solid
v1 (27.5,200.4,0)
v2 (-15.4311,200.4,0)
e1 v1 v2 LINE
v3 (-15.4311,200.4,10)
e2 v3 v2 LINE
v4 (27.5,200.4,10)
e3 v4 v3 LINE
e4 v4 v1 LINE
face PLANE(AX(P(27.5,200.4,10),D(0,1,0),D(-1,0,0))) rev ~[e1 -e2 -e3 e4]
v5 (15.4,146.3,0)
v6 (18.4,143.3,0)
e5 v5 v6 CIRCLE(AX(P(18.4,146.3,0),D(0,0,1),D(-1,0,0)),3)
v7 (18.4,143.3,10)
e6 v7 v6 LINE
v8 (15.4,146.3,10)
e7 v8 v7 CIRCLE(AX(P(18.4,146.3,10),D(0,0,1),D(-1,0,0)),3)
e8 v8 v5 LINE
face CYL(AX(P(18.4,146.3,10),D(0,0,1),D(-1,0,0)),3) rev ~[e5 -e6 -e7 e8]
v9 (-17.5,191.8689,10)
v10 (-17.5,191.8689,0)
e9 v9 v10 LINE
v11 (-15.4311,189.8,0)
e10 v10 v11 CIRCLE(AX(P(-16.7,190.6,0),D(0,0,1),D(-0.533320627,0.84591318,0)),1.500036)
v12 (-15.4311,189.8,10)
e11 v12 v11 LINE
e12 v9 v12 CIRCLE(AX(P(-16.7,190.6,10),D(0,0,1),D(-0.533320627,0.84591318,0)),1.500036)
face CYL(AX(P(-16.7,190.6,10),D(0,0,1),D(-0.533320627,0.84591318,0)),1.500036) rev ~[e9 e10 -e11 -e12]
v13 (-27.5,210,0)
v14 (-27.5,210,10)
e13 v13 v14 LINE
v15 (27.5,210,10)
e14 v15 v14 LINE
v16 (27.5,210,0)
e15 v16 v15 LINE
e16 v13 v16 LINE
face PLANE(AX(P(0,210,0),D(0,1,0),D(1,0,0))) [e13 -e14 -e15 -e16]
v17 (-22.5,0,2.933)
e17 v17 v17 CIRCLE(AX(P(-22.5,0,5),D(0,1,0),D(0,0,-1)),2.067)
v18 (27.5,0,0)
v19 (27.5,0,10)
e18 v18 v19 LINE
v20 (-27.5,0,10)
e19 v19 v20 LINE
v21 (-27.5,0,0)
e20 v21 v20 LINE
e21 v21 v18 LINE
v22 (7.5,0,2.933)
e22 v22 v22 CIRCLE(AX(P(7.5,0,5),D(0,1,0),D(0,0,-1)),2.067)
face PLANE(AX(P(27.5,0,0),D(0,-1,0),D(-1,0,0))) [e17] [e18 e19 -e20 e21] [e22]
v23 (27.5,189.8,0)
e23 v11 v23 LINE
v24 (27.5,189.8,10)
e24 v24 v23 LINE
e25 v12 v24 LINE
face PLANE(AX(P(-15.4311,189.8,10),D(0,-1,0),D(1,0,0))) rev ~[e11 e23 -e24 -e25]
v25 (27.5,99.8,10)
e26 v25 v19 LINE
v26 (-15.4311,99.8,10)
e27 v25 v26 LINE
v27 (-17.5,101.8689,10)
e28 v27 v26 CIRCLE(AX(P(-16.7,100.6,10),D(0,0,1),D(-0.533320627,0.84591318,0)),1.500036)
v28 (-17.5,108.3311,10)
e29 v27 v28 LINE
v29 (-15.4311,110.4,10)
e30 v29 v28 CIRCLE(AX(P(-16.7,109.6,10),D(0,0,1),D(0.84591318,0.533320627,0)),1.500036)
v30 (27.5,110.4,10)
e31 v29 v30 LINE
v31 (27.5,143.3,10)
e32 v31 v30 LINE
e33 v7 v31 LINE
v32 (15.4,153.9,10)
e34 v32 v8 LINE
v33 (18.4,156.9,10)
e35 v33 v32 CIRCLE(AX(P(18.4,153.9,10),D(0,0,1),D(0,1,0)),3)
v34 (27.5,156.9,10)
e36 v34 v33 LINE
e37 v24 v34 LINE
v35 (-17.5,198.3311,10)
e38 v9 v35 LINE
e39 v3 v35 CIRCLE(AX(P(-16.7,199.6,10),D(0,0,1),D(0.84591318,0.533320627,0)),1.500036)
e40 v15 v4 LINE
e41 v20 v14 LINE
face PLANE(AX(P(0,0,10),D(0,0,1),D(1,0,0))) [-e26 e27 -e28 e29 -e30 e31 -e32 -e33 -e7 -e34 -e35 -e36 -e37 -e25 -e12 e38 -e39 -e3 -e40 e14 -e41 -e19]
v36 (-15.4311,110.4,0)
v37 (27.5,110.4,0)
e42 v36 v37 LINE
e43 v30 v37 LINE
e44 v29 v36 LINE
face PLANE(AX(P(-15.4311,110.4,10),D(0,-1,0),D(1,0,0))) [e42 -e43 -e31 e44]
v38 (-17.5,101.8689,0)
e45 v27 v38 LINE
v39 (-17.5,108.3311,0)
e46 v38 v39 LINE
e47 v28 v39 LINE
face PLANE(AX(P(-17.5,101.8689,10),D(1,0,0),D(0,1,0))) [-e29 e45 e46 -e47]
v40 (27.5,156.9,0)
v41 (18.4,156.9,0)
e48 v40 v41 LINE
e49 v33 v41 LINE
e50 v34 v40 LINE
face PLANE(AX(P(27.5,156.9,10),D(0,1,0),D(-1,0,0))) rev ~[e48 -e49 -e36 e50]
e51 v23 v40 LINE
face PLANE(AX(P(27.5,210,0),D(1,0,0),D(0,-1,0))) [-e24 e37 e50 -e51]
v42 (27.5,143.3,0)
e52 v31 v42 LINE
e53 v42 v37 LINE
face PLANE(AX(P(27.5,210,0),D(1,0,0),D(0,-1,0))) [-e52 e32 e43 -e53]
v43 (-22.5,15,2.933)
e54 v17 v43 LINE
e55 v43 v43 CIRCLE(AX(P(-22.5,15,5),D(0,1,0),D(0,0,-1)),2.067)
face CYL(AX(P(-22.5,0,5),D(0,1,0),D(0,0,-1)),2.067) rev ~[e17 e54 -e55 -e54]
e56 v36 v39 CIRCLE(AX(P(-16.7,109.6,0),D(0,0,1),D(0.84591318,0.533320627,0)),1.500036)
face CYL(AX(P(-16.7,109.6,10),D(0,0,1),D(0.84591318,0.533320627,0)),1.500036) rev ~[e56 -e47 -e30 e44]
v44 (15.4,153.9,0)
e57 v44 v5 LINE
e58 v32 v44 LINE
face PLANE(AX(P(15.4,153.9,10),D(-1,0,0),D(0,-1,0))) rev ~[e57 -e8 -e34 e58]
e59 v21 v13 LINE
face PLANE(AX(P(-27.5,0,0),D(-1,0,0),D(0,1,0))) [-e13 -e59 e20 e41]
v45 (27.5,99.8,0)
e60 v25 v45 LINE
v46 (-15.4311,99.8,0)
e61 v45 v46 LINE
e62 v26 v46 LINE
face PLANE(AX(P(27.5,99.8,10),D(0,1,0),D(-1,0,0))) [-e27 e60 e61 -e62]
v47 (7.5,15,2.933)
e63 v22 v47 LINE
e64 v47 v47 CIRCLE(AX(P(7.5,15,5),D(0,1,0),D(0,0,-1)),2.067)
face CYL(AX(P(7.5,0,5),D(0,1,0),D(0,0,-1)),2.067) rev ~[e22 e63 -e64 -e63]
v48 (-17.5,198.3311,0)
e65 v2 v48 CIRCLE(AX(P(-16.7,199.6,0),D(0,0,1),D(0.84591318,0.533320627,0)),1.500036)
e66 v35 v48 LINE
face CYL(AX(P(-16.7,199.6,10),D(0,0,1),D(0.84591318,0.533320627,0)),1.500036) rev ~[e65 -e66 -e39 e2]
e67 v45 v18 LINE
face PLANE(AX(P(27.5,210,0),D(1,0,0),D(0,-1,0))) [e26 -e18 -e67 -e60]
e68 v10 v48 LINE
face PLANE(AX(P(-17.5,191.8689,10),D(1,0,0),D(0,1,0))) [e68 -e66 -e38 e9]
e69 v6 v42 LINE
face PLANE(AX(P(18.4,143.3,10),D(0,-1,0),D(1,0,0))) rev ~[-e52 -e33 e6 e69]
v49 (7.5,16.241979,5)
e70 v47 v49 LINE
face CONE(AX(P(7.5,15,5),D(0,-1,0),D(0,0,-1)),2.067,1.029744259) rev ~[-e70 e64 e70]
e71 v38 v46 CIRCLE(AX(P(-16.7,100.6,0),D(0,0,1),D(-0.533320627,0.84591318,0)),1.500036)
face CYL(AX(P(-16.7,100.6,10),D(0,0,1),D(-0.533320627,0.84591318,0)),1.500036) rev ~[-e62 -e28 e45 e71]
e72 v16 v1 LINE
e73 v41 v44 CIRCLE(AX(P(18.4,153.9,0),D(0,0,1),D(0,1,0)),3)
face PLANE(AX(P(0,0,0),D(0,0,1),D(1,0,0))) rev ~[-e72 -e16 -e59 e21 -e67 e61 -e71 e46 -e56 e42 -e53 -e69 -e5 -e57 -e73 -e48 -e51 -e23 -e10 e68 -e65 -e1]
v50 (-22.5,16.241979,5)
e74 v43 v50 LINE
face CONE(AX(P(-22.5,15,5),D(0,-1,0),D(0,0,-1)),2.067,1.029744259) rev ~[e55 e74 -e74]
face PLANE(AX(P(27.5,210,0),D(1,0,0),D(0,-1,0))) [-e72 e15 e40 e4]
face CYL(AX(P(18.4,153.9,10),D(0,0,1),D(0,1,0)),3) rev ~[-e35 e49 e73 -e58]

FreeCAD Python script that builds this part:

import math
import FreeCAD as App
import Part
import Sketcher
from FreeCAD import Vector
Q = App.Units.Quantity


def add_polygon(sketch, points):
    """Adds a closed chain of lines whose ends are joined by coincident constraints."""
    first, n = sketch.GeometryCount, len(points)
    for a, b in zip(points, points[1:] + points[:1]):
        sketch.addGeometry(Part.LineSegment(App.Vector(*a, 0), App.Vector(*b, 0)), False)
    for i in range(n):
        sketch.addConstraint(Sketcher.Constraint("Coincident", first + i, 2, first + (i + 1) % n, 1))

doc = App.newDocument("Part")
body = doc.addObject("PartDesign::Body", "Body")

sketch1 = doc.addObject("Sketcher::SketchObject", "Sketch")
body.addObject(sketch1)
sketch1.AttachmentSupport = (doc.XY_Plane, [""])
sketch1.MapMode = "FlatFace"
add_polygon(sketch1, [(27.5, 0), (27.5, 210), (-27.5, 210), (-27.5, 0)])
sketch1.addConstraint(Sketcher.Constraint("Vertical", 0))
sketch1.addConstraint(Sketcher.Constraint("Horizontal", 1))
sketch1.addConstraint(Sketcher.Constraint("Vertical", 2))
sketch1.addConstraint(Sketcher.Constraint("Horizontal", 3))
sketch1.addConstraint(Sketcher.Constraint("Symmetric", 2, 2, 3, 2, -1, 1))
sketch1.addConstraint(Sketcher.Constraint("DistanceX", 1, 2, 1, 1, Q("55 mm")))
sketch1.addConstraint(Sketcher.Constraint("DistanceY", 0, 1, 0, 2, Q("210 mm")))
pad1 = doc.addObject("PartDesign::Pad", "Pad")
body.addObject(pad1)
pad1.Profile = sketch1
pad1.Length = 10

sketch2 = doc.addObject("Sketcher::SketchObject", "Sketch001")
body.addObject(sketch2)
sketch2.AttachmentSupport = (doc.XY_Plane, [""])
sketch2.MapMode = "FlatFace"
sketch2.AttachmentOffset = App.Placement(Vector(0, 0, 10), App.Rotation())
sketch2.addGeometry(Part.LineSegment(Vector(27.5, 99.8, 0), Vector(27.5, 110.4, 0)), False)
sketch2.addGeometry(Part.LineSegment(Vector(27.5, 110.4, 0), Vector(-15.4311, 110.4, 0)), False)
sketch2.addGeometry(Part.ArcOfCircle(Part.Circle(Vector(-16.7, 109.6, 0), Vector(0, 0, 1), 1.500036), math.radians(32.230092), math.radians(237.769908)), False)
sketch2.addGeometry(Part.LineSegment(Vector(-17.5, 108.3311, 0), Vector(-17.5, 101.8689, 0)), False)
sketch2.addGeometry(Part.ArcOfCircle(Part.Circle(Vector(-16.7, 100.6, 0), Vector(0, 0, 1), 1.500036), math.radians(122.230092), math.radians(327.769908)), False)
sketch2.addGeometry(Part.LineSegment(Vector(-15.4311, 99.8, 0), Vector(27.5, 99.8, 0)), False)
sketch2.addGeometry(Part.LineSegment(Vector(27.5, 156.023708, 0), Vector(27.5, 156.9, 0)), False)
sketch2.addGeometry(Part.LineSegment(Vector(27.5, 156.9, 0), Vector(18.4, 156.9, 0)), False)
sketch2.addGeometry(Part.ArcOfCircle(Part.Circle(Vector(18.4, 153.9, 0), Vector(0, 0, 1), 3), math.radians(90), math.radians(180)), False)
sketch2.addGeometry(Part.LineSegment(Vector(15.4, 153.9, 0), Vector(15.4, 146.3, 0)), False)
sketch2.addGeometry(Part.ArcOfCircle(Part.Circle(Vector(18.4, 146.3, 0), Vector(0, 0, 1), 3), math.radians(180), math.radians(270)), False)
sketch2.addGeometry(Part.LineSegment(Vector(18.4, 143.3, 0), Vector(27.5, 143.3, 0)), False)
sketch2.addGeometry(Part.LineSegment(Vector(27.5, 143.3, 0), Vector(27.5, 144.176292, 0)), False)
sketch2.addGeometry(Part.ArcOfCircle(Part.Circle(Vector(22.9, 150.1, 0), Vector(0, 0, 1), 7.500021), math.radians(-52.169209), math.radians(52.169209)), False)
sketch2.addGeometry(Part.LineSegment(Vector(27.5, 189.8, 0), Vector(27.5, 200.4, 0)), False)
sketch2.addGeometry(Part.LineSegment(Vector(27.5, 200.4, 0), Vector(-15.4311, 200.4, 0)), False)
sketch2.addGeometry(Part.ArcOfCircle(Part.Circle(Vector(-16.7, 199.6, 0), Vector(0, 0, 1), 1.500036), math.radians(32.230092), math.radians(237.769908)), False)
sketch2.addGeometry(Part.LineSegment(Vector(-17.5, 198.3311, 0), Vector(-17.5, 191.8689, 0)), False)
sketch2.addGeometry(Part.ArcOfCircle(Part.Circle(Vector(-16.7, 190.6, 0), Vector(0, 0, 1), 1.500036), math.radians(122.230092), math.radians(327.769908)), False)
sketch2.addGeometry(Part.LineSegment(Vector(-15.4311, 189.8, 0), Vector(27.5, 189.8, 0)), False)
sketch2.addConstraint(Sketcher.Constraint("Coincident", 0, 2, 1, 1))
sketch2.addConstraint(Sketcher.Constraint("Coincident", 1, 2, 2, 1))
sketch2.addConstraint(Sketcher.Constraint("Coincident", 2, 2, 3, 1))
sketch2.addConstraint(Sketcher.Constraint("Coincident", 3, 2, 4, 1))
sketch2.addConstraint(Sketcher.Constraint("Coincident", 4, 2, 5, 1))
sketch2.addConstraint(Sketcher.Constraint("Coincident", 5, 2, 0, 1))
sketch2.addConstraint(Sketcher.Constraint("Coincident", 6, 2, 7, 1))
sketch2.addConstraint(Sketcher.Constraint("Tangent", 7, 2, 8, 1))
sketch2.addConstraint(Sketcher.Constraint("Tangent", 8, 2, 9, 1))
sketch2.addConstraint(Sketcher.Constraint("Tangent", 9, 2, 10, 1))
sketch2.addConstraint(Sketcher.Constraint("Tangent", 10, 2, 11, 1))
sketch2.addConstraint(Sketcher.Constraint("Coincident", 11, 2, 12, 1))
sketch2.addConstraint(Sketcher.Constraint("Coincident", 12, 2, 13, 1))
sketch2.addConstraint(Sketcher.Constraint("Coincident", 13, 2, 6, 1))
sketch2.addConstraint(Sketcher.Constraint("Coincident", 14, 2, 15, 1))
sketch2.addConstraint(Sketcher.Constraint("Coincident", 15, 2, 16, 1))
sketch2.addConstraint(Sketcher.Constraint("Coincident", 16, 2, 17, 1))
sketch2.addConstraint(Sketcher.Constraint("Coincident", 17, 2, 18, 1))
sketch2.addConstraint(Sketcher.Constraint("Coincident", 18, 2, 19, 1))
sketch2.addConstraint(Sketcher.Constraint("Coincident", 19, 2, 14, 1))
sketch2.addConstraint(Sketcher.Constraint("Vertical", 0))
sketch2.addConstraint(Sketcher.Constraint("Horizontal", 1))
sketch2.addConstraint(Sketcher.Constraint("Vertical", 3))
sketch2.addConstraint(Sketcher.Constraint("Horizontal", 5))
sketch2.addConstraint(Sketcher.Constraint("Vertical", 6))
sketch2.addConstraint(Sketcher.Constraint("Horizontal", 7))
sketch2.addConstraint(Sketcher.Constraint("Vertical", 9))
sketch2.addConstraint(Sketcher.Constraint("Horizontal", 11))
sketch2.addConstraint(Sketcher.Constraint("Vertical", 12))
sketch2.addConstraint(Sketcher.Constraint("Vertical", 14))
sketch2.addConstraint(Sketcher.Constraint("Horizontal", 15))
sketch2.addConstraint(Sketcher.Constraint("Vertical", 17))
sketch2.addConstraint(Sketcher.Constraint("Horizontal", 19))
sketch2.addConstraint(Sketcher.Constraint("Equal", 2, 4))
sketch2.addConstraint(Sketcher.Constraint("Equal", 8, 10))
sketch2.addConstraint(Sketcher.Constraint("Equal", 4, 16))
sketch2.addConstraint(Sketcher.Constraint("Equal", 16, 18))
sketch2.addConstraint(Sketcher.Constraint("Vertical", 2, 3, 4, 3))
sketch2.addConstraint(Sketcher.Constraint("Vertical", 4, 3, 16, 3))
sketch2.addConstraint(Sketcher.Constraint("Vertical", 16, 3, 18, 3))
sketch2.addConstraint(Sketcher.Constraint("Vertical", 1, 2, 4, 2))
sketch2.addConstraint(Sketcher.Constraint("Vertical", 5, 2, 6, 2))
sketch2.addConstraint(Sketcher.Constraint("Vertical", 6, 2, 11, 2))
sketch2.addConstraint(Sketcher.Constraint("Vertical", 13, 2, 14, 2))
sketch2.addConstraint(Sketcher.Constraint("Vertical", 4, 2, 15, 2))
sketch2.addConstraint(Sketcher.Constraint("Vertical", 3, 2, 16, 2))
sketch2.addConstraint(Sketcher.Constraint("Vertical", 15, 2, 18, 2))
sketch2.addConstraint(Sketcher.Constraint("Equal", 6, 12))
sketch2.addConstraint(Sketcher.Constraint("Equal", 0, 14))
sketch2.addConstraint(Sketcher.Constraint("Radius", 8, Q("3 mm")))
sketch2.addConstraint(Sketcher.Constraint("Radius", 2, Q("1.5 mm")))
sketch2.addConstraint(Sketcher.Constraint("DistanceY", 0, 1, 0, 2, Q("10.6 mm")))
sketch2.addConstraint(Sketcher.Constraint("Radius", 13, Q("7.5 mm")))
sketch2.addConstraint(Sketcher.Constraint("DistanceY", 2, 3, 0, 2, Q("0.8 mm")))
sketch2.addConstraint(Sketcher.Constraint("DistanceX", 2, 2, 2, 3, Q("0.8 mm")))
sketch2.addConstraint(Sketcher.Constraint("DistanceY", 10, 3, 6, 2, Q("10.6 mm")))
sketch2.addConstraint(Sketcher.Constraint("DistanceX", 8, 2, 6, 2, Q("12.1 mm")))
sketch2.addConstraint(Sketcher.Constraint("DistanceY", 2, 3, 16, 3, Q("90 mm")))
sketch2.addConstraint(Sketcher.Constraint("DistanceX", 2, 2, 0, 2, Q("45 mm")))
sketch2.addConstraint(Sketcher.Constraint("DistanceX", 2, 3, -1, 1, Q("16.7 mm")))
sketch2.addConstraint(Sketcher.Constraint("DistanceY", -1, 1, 2, 3, Q("109.6 mm")))
sketch2.addConstraint(Sketcher.Constraint("DistanceY", -1, 1, 8, 3, Q("153.9 mm")))
sketch2.addConstraint(Sketcher.Constraint("DistanceX", -1, 1, 13, 3, Q("22.9 mm")))
pocket1 = doc.addObject("PartDesign::Pocket", "Pocket")
body.addObject(pocket1)
pocket1.Profile = sketch2
pocket1.Type = "ThroughAll"

sketch3 = doc.addObject("Sketcher::SketchObject", "Sketch002")
body.addObject(sketch3)
sketch3.AttachmentSupport = (doc.XZ_Plane, [""])
sketch3.MapMode = "FlatFace"
sketch3.addGeometry(Part.Circle(Vector(-22.5, 5, 0), Vector(0, 0, 1), 2.067), False)
sketch3.addGeometry(Part.Circle(Vector(7.5, 5, 0), Vector(0, 0, 1), 2.067), False)
sketch3.addConstraint(Sketcher.Constraint("Equal", 0, 1))
sketch3.addConstraint(Sketcher.Constraint("Horizontal", 0, 3, 1, 3))
sketch3.addConstraint(Sketcher.Constraint("Diameter", 0, Q("4.134 mm")))
sketch3.addConstraint(Sketcher.Constraint("DistanceY", -1, 1, 0, 3, Q("5 mm")))
sketch3.addConstraint(Sketcher.Constraint("DistanceX", 0, 3, 1, 3, Q("30 mm")))
sketch3.addConstraint(Sketcher.Constraint("DistanceX", 0, 3, -1, 1, Q("22.5 mm")))
doc.recompute()
hole = doc.addObject("PartDesign::Hole", "Hole")
body.addObject(hole)
hole.Profile = sketch3
hole.ThreadType = "None"
hole.Diameter = 4.134
hole.DepthType = "Dimension"
hole.Depth = 15
hole.DrillPoint = "Angled"
hole.DrillPointAngle = 118

doc.recompute()
